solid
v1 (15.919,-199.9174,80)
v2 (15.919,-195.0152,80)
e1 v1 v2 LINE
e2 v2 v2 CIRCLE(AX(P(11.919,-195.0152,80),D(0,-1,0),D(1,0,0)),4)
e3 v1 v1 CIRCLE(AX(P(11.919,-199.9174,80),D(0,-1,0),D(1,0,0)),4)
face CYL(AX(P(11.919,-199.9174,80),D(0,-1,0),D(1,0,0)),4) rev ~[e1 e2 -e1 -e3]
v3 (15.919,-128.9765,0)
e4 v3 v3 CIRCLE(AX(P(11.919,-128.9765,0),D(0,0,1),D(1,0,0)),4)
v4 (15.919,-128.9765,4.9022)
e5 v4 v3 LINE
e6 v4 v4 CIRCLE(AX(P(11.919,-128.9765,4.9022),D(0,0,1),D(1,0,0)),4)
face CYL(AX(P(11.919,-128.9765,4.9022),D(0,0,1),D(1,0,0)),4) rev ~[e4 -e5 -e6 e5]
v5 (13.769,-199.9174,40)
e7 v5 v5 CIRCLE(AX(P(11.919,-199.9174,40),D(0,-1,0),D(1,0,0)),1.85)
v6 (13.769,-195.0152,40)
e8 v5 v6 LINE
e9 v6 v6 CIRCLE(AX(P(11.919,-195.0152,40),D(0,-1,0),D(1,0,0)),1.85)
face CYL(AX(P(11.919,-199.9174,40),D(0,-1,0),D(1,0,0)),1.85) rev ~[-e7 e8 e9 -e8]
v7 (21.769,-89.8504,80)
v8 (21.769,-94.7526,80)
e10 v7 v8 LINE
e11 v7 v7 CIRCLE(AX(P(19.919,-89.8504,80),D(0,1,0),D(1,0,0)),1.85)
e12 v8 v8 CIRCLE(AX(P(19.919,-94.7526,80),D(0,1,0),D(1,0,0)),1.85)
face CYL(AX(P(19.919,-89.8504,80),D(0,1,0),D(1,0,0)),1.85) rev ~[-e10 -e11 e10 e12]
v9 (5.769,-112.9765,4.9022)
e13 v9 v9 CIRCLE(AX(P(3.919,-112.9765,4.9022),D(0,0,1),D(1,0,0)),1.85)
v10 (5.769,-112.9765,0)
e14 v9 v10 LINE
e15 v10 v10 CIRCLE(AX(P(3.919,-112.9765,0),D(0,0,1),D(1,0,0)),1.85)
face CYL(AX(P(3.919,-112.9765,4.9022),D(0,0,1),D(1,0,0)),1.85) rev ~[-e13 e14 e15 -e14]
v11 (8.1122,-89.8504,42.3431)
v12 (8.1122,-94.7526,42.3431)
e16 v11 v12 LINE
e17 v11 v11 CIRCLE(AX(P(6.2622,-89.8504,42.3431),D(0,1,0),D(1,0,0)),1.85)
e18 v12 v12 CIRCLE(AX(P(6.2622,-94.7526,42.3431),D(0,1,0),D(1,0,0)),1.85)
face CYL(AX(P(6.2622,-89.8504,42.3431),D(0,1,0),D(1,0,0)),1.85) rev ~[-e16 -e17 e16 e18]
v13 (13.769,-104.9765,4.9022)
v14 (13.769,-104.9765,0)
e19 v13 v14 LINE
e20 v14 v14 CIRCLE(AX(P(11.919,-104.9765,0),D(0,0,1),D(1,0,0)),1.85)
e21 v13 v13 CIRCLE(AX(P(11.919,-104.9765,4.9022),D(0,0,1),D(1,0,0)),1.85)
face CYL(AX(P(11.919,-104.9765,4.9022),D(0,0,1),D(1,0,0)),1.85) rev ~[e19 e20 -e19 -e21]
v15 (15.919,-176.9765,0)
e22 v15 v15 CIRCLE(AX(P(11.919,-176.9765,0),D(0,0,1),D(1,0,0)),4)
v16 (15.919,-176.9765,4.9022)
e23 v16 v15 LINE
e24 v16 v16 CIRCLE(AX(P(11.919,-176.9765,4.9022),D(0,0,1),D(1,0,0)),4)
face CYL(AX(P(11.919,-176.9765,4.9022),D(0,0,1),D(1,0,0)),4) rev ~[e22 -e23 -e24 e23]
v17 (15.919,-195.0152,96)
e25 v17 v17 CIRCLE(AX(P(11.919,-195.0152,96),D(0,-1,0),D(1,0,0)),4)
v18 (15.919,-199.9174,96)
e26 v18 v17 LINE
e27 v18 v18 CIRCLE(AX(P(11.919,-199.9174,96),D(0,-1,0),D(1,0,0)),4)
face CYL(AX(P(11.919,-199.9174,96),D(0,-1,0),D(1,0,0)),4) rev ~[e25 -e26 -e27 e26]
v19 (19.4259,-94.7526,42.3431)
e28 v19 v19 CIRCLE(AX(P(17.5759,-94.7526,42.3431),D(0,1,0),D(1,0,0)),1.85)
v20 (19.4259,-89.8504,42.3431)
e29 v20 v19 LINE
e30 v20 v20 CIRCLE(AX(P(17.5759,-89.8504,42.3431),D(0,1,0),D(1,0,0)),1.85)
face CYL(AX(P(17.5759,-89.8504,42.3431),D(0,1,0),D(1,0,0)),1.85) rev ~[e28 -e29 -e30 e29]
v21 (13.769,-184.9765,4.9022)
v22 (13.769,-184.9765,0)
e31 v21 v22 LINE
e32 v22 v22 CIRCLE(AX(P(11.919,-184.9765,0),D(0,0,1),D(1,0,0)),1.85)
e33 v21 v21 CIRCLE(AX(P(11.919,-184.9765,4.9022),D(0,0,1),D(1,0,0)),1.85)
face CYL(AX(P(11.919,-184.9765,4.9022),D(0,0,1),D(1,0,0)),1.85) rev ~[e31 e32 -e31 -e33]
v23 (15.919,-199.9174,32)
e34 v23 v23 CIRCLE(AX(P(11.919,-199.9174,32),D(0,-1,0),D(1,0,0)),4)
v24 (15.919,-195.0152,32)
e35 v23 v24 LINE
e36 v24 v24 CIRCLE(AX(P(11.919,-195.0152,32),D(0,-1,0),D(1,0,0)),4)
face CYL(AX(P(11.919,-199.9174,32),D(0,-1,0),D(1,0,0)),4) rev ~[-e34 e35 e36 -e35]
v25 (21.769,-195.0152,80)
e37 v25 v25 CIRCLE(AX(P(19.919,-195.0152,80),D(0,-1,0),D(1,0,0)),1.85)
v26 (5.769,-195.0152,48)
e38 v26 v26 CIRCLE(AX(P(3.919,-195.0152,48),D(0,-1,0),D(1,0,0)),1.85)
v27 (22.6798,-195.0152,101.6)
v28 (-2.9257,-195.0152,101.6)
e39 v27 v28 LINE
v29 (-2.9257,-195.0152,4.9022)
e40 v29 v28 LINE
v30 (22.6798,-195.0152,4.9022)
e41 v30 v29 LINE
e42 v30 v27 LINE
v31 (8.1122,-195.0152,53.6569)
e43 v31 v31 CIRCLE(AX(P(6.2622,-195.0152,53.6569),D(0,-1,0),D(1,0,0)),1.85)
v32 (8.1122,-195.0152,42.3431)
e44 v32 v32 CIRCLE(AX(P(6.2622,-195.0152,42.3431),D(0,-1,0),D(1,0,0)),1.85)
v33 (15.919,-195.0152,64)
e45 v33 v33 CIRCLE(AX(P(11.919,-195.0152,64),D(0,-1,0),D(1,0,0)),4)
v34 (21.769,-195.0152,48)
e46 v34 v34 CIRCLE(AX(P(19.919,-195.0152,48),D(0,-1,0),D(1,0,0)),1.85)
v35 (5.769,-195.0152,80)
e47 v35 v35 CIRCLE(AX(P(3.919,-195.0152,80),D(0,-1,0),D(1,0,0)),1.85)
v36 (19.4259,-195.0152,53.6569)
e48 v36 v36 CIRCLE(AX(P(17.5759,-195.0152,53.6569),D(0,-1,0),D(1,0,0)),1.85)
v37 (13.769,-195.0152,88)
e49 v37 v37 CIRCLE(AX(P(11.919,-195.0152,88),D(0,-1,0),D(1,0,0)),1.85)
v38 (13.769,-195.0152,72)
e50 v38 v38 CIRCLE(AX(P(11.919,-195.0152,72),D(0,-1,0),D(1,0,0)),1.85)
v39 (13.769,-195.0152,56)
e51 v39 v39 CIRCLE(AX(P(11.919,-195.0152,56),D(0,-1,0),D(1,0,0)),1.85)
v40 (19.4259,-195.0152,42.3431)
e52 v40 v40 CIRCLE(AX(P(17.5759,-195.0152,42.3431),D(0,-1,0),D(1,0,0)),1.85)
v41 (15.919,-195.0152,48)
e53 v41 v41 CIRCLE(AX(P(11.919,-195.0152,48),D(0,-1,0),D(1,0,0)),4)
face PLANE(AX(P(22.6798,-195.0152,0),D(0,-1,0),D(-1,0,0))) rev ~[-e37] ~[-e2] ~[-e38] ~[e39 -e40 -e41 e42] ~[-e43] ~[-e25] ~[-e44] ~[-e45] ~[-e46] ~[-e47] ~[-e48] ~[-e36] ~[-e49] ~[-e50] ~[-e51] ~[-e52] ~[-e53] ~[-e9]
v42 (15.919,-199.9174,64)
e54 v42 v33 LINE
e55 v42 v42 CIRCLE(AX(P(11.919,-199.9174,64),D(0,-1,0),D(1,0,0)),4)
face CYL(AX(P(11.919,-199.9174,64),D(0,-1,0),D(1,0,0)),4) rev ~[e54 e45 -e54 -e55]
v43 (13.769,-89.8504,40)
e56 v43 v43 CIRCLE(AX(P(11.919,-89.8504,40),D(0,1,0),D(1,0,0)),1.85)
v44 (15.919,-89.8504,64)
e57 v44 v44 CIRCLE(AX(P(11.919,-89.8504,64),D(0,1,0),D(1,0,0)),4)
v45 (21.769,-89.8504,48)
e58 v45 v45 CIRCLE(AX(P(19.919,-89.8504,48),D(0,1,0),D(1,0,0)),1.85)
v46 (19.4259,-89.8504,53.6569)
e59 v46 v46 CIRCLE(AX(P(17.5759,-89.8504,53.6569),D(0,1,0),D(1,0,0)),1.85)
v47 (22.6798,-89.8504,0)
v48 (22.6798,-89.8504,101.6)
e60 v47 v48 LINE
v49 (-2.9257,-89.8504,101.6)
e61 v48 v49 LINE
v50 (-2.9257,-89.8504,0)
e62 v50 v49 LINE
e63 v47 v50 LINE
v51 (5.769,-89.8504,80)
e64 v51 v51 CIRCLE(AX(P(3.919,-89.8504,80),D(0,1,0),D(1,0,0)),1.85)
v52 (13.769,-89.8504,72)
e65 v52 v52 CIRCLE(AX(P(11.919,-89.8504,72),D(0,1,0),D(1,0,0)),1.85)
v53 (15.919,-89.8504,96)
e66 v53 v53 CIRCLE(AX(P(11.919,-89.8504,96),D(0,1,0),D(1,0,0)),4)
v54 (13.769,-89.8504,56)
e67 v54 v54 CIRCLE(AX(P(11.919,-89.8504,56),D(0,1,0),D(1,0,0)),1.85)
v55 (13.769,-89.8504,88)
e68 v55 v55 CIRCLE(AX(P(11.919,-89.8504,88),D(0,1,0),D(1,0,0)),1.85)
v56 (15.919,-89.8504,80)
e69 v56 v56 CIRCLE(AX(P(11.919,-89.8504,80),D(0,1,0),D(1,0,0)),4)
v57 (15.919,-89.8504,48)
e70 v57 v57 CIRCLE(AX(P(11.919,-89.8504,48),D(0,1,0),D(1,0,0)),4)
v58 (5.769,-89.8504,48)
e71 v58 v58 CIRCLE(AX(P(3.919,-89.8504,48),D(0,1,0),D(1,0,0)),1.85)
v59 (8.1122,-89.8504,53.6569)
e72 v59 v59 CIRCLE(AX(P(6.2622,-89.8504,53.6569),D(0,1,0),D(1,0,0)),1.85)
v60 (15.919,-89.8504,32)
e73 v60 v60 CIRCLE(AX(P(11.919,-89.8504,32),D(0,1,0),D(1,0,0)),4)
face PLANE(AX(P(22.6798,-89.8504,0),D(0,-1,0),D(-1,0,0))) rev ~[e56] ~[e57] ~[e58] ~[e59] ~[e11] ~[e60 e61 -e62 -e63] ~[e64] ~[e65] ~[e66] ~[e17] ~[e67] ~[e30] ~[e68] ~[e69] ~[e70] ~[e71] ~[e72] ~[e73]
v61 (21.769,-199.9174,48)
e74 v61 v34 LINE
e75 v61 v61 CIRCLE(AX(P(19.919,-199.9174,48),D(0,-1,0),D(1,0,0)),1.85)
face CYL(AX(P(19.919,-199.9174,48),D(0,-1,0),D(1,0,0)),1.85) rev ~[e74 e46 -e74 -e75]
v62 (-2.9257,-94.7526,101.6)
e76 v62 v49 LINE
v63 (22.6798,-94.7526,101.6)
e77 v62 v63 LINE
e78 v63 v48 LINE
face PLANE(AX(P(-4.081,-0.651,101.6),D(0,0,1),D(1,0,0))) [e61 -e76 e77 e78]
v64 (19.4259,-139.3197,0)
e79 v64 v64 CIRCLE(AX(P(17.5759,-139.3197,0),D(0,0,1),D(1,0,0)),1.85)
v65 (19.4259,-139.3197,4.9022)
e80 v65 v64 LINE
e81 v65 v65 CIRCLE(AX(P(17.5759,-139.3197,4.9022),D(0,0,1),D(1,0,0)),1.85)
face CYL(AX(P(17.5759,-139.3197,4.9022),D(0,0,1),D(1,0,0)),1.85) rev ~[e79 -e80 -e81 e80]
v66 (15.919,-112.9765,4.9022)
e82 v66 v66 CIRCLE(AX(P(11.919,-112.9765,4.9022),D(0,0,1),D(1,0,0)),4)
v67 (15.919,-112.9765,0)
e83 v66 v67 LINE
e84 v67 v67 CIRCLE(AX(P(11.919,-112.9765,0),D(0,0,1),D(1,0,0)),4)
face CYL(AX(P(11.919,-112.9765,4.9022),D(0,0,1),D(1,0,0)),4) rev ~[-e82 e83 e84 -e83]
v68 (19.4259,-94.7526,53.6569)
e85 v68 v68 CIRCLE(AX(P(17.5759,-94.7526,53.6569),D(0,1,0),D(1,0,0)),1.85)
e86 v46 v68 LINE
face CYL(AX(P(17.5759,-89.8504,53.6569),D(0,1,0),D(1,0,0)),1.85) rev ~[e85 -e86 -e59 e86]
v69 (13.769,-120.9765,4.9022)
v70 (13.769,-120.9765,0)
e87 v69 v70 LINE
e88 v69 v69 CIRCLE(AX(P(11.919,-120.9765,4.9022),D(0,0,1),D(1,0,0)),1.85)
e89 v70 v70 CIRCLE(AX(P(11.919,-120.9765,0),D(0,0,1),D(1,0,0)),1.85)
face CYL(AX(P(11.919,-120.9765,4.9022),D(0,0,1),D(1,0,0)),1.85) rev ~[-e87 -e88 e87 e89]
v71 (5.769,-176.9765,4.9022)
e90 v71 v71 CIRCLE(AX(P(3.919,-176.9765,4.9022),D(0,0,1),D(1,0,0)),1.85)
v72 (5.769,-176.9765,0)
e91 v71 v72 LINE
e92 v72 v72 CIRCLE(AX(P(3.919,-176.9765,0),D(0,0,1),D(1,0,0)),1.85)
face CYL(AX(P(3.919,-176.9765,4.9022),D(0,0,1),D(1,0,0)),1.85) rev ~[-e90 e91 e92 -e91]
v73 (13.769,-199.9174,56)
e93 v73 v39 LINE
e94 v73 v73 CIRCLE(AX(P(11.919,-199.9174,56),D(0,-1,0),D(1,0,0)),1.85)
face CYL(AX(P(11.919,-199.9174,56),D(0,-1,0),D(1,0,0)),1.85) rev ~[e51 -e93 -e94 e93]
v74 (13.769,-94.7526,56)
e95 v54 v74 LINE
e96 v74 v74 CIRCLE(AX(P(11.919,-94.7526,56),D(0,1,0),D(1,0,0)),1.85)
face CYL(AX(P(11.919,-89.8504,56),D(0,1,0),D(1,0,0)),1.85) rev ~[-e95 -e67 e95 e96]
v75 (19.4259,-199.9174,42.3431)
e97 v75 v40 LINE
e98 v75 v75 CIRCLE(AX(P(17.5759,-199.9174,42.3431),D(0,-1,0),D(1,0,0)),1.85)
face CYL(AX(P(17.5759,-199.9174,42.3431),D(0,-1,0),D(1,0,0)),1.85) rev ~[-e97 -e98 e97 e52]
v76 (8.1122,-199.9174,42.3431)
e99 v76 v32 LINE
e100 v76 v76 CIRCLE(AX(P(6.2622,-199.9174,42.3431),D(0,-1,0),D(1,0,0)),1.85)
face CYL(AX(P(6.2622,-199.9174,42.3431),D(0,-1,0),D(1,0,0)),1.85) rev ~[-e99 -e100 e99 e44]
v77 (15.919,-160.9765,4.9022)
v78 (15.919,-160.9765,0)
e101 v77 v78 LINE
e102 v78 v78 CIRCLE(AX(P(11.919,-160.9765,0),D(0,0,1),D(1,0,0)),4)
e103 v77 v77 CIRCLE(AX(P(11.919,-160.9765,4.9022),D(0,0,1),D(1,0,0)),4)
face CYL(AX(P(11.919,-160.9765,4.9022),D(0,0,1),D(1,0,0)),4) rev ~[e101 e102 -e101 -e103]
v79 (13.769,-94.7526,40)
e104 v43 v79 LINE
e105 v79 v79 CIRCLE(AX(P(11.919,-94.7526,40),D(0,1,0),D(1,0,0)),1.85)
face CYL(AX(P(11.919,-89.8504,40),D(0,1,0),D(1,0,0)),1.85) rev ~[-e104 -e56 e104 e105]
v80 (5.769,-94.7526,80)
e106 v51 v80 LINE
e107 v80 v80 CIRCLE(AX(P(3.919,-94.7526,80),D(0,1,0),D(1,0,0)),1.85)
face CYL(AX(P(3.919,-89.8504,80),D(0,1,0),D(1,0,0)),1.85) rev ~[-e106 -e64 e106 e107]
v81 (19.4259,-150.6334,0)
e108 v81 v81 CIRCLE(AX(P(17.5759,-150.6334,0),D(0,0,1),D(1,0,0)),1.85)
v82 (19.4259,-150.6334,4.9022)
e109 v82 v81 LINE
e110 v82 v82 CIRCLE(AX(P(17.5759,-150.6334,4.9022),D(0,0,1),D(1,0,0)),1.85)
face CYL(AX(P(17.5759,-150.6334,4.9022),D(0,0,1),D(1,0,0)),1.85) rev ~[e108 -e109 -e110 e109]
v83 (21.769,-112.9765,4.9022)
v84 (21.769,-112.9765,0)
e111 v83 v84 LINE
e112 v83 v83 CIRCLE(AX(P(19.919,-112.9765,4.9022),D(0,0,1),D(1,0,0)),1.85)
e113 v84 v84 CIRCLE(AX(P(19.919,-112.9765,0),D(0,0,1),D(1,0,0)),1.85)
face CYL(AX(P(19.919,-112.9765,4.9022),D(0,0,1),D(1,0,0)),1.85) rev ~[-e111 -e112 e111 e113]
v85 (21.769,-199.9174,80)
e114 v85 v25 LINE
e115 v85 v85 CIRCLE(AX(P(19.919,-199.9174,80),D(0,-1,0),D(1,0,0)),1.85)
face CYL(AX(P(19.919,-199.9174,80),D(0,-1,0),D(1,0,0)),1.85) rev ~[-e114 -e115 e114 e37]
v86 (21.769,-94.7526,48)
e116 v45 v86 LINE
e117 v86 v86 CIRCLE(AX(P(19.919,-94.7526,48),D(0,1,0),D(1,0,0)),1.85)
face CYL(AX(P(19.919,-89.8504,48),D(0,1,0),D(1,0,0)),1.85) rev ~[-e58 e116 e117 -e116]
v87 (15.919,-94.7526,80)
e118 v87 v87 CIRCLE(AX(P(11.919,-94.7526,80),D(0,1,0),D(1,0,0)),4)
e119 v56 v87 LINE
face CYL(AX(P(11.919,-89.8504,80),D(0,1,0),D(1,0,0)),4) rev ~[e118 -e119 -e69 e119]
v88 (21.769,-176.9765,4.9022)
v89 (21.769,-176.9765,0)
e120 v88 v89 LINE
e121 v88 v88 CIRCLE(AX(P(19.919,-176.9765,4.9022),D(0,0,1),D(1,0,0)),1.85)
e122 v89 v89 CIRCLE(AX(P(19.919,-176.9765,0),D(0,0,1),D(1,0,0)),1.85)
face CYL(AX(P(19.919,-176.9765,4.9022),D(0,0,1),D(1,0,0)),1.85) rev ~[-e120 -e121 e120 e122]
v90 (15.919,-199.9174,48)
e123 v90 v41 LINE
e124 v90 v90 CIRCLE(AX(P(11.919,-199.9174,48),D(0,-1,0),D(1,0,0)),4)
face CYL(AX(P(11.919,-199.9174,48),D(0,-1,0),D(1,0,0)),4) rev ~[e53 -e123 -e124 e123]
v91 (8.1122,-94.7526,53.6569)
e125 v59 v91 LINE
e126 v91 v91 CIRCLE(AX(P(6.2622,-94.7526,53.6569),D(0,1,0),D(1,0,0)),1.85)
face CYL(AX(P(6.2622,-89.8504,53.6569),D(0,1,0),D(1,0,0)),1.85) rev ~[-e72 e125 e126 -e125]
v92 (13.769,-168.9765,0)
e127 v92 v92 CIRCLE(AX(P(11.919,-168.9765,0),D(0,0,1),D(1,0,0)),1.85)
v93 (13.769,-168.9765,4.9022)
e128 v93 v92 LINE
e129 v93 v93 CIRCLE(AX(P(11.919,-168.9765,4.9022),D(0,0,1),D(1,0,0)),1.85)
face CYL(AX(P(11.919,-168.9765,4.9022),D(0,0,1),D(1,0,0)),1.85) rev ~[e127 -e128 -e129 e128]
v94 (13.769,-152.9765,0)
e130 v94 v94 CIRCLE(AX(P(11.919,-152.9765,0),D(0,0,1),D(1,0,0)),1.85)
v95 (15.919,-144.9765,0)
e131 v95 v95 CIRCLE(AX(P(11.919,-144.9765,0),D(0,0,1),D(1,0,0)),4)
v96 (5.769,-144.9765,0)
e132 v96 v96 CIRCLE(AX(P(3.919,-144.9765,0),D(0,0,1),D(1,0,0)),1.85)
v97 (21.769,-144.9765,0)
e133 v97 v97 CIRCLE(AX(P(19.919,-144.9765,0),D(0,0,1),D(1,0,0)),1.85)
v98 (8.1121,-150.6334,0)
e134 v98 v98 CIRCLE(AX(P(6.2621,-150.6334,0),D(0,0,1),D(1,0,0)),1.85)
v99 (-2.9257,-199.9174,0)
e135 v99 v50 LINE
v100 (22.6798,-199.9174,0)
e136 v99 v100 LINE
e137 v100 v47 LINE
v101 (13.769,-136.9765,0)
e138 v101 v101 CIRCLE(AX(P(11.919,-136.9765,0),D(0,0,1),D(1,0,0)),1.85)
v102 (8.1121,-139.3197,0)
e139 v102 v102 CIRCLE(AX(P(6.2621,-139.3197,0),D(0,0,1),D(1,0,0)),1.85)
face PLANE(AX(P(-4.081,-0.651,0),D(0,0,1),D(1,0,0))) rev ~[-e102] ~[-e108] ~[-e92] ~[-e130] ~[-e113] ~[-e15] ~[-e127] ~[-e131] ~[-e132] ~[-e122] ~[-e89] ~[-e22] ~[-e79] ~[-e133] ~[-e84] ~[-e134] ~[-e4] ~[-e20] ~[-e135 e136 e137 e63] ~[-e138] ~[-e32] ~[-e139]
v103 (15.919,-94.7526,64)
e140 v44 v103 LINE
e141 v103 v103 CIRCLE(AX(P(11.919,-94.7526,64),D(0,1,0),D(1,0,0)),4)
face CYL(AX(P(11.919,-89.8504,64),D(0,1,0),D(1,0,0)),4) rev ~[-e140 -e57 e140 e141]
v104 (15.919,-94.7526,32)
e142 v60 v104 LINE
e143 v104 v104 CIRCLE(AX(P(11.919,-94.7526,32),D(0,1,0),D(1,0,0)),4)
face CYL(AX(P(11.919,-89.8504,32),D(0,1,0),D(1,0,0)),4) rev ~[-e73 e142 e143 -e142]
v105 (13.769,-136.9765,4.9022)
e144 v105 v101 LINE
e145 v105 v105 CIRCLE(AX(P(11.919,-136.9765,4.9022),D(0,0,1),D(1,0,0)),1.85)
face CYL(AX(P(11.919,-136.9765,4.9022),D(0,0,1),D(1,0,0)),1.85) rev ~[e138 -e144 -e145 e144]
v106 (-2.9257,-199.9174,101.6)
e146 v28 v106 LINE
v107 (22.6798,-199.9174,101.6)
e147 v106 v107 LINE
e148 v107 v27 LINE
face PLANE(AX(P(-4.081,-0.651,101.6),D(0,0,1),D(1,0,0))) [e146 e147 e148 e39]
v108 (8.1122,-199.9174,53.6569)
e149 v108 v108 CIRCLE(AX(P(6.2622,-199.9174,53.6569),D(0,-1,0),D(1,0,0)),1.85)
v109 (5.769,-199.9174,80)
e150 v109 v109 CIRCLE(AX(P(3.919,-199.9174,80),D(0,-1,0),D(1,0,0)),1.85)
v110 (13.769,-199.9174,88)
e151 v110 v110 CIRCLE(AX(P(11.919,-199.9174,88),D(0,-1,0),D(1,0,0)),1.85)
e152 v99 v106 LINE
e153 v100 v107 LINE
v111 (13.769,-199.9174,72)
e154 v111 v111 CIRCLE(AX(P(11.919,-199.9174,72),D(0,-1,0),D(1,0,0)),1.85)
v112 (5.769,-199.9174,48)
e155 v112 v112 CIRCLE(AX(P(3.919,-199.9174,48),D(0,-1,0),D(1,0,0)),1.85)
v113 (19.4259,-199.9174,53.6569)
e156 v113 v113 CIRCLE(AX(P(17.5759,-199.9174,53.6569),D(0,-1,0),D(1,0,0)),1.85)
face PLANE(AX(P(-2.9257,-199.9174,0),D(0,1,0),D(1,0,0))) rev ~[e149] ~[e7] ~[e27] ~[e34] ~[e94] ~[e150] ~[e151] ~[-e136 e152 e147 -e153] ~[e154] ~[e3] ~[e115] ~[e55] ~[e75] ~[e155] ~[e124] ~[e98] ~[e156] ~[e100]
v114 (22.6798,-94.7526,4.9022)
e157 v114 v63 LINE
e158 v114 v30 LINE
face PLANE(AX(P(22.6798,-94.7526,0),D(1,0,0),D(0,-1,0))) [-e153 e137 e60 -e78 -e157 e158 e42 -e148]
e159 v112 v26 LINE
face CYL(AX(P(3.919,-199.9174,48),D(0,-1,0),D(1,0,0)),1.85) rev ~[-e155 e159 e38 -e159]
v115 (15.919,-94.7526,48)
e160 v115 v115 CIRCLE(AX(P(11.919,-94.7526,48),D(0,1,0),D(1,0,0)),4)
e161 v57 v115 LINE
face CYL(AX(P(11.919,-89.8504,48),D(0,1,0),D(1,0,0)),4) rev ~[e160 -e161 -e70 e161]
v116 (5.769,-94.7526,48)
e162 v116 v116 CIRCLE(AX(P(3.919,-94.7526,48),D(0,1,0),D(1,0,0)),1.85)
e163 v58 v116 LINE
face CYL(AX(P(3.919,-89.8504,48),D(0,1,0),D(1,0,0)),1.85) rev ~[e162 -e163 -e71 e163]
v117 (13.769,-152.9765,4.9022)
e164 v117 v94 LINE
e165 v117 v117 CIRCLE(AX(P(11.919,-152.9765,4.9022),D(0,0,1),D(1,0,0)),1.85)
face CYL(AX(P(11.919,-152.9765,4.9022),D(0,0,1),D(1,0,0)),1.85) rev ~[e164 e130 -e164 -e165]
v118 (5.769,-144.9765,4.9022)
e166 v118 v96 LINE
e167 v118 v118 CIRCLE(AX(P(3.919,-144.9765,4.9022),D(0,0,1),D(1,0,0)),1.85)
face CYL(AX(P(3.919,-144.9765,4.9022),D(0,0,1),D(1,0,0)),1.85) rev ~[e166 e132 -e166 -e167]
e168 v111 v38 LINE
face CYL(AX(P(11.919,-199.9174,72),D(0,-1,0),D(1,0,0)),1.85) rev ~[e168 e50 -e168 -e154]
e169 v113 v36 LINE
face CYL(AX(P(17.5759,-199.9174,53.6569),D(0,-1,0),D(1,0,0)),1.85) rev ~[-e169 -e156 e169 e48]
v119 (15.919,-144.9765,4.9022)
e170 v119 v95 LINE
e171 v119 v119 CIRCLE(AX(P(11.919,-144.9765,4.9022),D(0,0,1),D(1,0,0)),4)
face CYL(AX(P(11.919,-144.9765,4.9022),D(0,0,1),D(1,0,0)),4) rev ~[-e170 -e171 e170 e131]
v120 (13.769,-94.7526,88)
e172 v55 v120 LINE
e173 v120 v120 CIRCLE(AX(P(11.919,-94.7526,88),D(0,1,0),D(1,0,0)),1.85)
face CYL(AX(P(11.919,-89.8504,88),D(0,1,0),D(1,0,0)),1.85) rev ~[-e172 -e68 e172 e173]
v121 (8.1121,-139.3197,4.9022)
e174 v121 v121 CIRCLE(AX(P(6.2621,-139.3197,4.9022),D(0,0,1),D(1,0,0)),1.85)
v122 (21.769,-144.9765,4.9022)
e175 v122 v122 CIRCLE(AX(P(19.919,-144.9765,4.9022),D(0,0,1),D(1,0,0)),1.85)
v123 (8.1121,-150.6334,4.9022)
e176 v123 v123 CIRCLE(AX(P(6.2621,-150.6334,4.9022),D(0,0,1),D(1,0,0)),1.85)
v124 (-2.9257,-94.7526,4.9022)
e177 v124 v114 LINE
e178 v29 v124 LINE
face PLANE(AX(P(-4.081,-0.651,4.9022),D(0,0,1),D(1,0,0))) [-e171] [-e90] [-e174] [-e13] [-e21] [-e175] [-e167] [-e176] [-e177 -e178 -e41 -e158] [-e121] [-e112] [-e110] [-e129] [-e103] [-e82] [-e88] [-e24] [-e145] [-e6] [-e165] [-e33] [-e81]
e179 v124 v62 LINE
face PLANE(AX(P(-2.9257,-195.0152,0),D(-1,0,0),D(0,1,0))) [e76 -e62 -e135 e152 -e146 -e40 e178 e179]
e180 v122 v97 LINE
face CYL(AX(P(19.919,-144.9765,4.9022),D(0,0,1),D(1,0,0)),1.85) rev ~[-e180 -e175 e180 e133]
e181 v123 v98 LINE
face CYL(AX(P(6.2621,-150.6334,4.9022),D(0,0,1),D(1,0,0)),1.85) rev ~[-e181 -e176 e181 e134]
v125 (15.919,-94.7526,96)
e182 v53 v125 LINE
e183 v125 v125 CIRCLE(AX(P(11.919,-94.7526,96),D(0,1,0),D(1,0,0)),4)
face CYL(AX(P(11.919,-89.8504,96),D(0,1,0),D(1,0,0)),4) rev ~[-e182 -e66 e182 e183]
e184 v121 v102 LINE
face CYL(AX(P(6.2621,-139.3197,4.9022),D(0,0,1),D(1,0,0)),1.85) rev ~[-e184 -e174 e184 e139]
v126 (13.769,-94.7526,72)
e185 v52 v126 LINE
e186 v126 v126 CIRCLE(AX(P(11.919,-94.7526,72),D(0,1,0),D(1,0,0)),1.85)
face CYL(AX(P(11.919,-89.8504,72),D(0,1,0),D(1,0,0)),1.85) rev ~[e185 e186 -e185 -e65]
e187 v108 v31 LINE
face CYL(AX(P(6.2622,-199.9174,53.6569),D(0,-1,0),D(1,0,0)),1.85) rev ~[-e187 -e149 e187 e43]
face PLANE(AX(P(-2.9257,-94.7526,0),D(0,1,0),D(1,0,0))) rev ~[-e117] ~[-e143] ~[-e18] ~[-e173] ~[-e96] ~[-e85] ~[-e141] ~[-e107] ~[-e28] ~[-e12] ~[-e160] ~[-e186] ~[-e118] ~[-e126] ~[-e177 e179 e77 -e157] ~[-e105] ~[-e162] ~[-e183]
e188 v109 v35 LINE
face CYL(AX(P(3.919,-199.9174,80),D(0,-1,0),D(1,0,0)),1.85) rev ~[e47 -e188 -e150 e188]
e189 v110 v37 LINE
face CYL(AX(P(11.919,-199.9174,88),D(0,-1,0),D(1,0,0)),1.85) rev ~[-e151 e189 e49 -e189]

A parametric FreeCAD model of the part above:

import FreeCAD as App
import Part
import Sketcher
from FreeCAD import Vector
Q = App.Units.Quantity

doc = App.newDocument("Part")
body = doc.addObject("PartDesign::Body", "Body")
body.AllowCompound = True

# Sketch on XY plane
sketch1 = body.newObject("Sketcher::SketchObject", "Sketch")
sketch1.AttachmentSupport = (doc.getObject("XY_Plane"), [""])
sketch1.MapMode = "FlatFace"
sketch1.addGeometry([
    Part.LineSegment(Vector(22.7, -195, 0), Vector(-2.9, -195, 0)),  # 0
    Part.LineSegment(Vector(-2.9, -195, 0), Vector(-2.9, -199.9, 0)),  # 1
    Part.LineSegment(Vector(-2.9, -199.9, 0), Vector(22.7, -199.9, 0)),  # 2
    Part.LineSegment(Vector(22.7, -199.9, 0), Vector(22.7, -195, 0)),  # 3
    Part.LineSegment(Vector(-2.9, -89.9, 0), Vector(-2.9, -94.8, 0)),  # 4
    Part.LineSegment(Vector(-2.9, -94.8, 0), Vector(22.7, -94.8, 0)),  # 5
    Part.LineSegment(Vector(22.7, -94.8, 0), Vector(22.7, -89.9, 0)),  # 6
    Part.LineSegment(Vector(22.7, -89.9, 0), Vector(-2.9, -89.9, 0)),  # 7
], False)
sketch1.addConstraint([
    Sketcher.Constraint("Coincident", 0, 2, 1, 1),
    Sketcher.Constraint("Coincident", 1, 2, 2, 1),
    Sketcher.Constraint("Coincident", 2, 2, 3, 1),
    Sketcher.Constraint("Coincident", 3, 2, 0, 1),
    Sketcher.Constraint("Coincident", 4, 2, 5, 1),
    Sketcher.Constraint("Coincident", 5, 2, 6, 1),
    Sketcher.Constraint("Coincident", 6, 2, 7, 1),
    Sketcher.Constraint("Coincident", 7, 2, 4, 1),
    Sketcher.Constraint("Horizontal", 0),
    Sketcher.Constraint("Vertical", 1),
    Sketcher.Constraint("Horizontal", 2),
    Sketcher.Constraint("Vertical", 3),
    Sketcher.Constraint("Vertical", 4),
    Sketcher.Constraint("Horizontal", 5),
    Sketcher.Constraint("Vertical", 6),
    Sketcher.Constraint("Horizontal", 7),
    Sketcher.Constraint("Vertical", 1, 2, 4, 2),
    Sketcher.Constraint("Vertical", 3, 2, 5, 2),
    Sketcher.Constraint("Equal", 3, 4),
    Sketcher.Constraint("DistanceY", 1, 2, 1, 1, Q("0.193 in")),
    Sketcher.Constraint("DistanceX", 0, 2, 0, 1, Q("1.0081 in")),
    Sketcher.Constraint("DistanceX", -1, 1, 2, 2, Q("0.8929 in")),
    Sketcher.Constraint("DistanceY", 0, 2, -1, 1, 195.0152),
    Sketcher.Constraint("DistanceY", 4, 2, -1, 1, 94.7526),
])
pad1 = body.newObject("PartDesign::Pad", "Pad")
pad1.Profile = sketch1
pad1.Length = Q("4 in")

# Sketch on XY plane
sketch2 = body.newObject("Sketcher::SketchObject", "Sketch001")
sketch2.AttachmentSupport = (doc.getObject("XY_Plane"), [""])
sketch2.MapMode = "FlatFace"
sketch2.addGeometry([
    Part.LineSegment(Vector(23, -95, 0), Vector(-3, -95, 0)),
    Part.LineSegment(Vector(-3, -95, 0), Vector(-3, -195, 0)),
    Part.LineSegment(Vector(-3, -195, 0), Vector(23, -195, 0)),
    Part.LineSegment(Vector(23, -195, 0), Vector(23, -95, 0)),
], False)
sketch2.addConstraint([
    Sketcher.Constraint("Coincident", 0, 2, 1, 1),
    Sketcher.Constraint("Coincident", 1, 2, 2, 1),
    Sketcher.Constraint("Coincident", 2, 2, 3, 1),
    Sketcher.Constraint("Coincident", 3, 2, 0, 1),
    Sketcher.Constraint("Horizontal", 0),
    Sketcher.Constraint("Vertical", 1),
    Sketcher.Constraint("Horizontal", 2),
    Sketcher.Constraint("Vertical", 3),
    Sketcher.Constraint("DistanceX", 0, 2, 0, 1, Q("1.0081 in")),
    Sketcher.Constraint("DistanceY", 1, 2, 1, 1, 100.2626),
    Sketcher.Constraint("DistanceX", -1, 1, 2, 2, Q("0.8929 in")),
    Sketcher.Constraint("DistanceY", 0, 2, -1, 1, 94.7526),
])
pad2 = body.newObject("PartDesign::Pad", "Pad001")
pad2.Profile = sketch2
pad2.Length = Q("0.193 in")

# Sketch on XZ plane
sketch3 = body.newObject("Sketcher::SketchObject", "Sketch002")
sketch3.AttachmentSupport = (doc.getObject("XZ_Plane"), [""])
sketch3.MapMode = "FlatFace"
sketch3.AttachmentOffset = App.Placement(Vector(0, 0, 89.8504), App.Rotation())
sketch3.addGeometry([
    Part.Circle(Vector(11.9, 48, 0), Vector(0, 0, 1), 4),  # 0
    Part.Circle(Vector(3.9, 48, 0), Vector(0, 0, 1), 1.9),  # 1
    Part.Circle(Vector(19.9, 48, 0), Vector(0, 0, 1), 1.9),  # 2
    Part.Circle(Vector(11.9, 56, 0), Vector(0, 0, 1), 1.9),  # 3
    Part.Circle(Vector(11.9, 40, 0), Vector(0, 0, 1), 1.9),  # 4
    Part.Circle(Vector(6.3, 53.7, 0), Vector(0, 0, 1), 1.9),  # 5
    Part.Circle(Vector(6.3, 42.3, 0), Vector(0, 0, 1), 1.9),  # 6
    Part.Circle(Vector(17.6, 42.3, 0), Vector(0, 0, 1), 1.9),  # 7
    Part.Circle(Vector(17.6, 53.7, 0), Vector(0, 0, 1), 1.9),  # 8
    Part.Circle(Vector(11.9, 80, 0), Vector(0, 0, 1), 4),  # 9
    Part.Circle(Vector(3.9, 80, 0), Vector(0, 0, 1), 1.9),  # 10
    Part.Circle(Vector(11.9, 88, 0), Vector(0, 0, 1), 1.9),  # 11
    Part.Circle(Vector(19.9, 80, 0), Vector(0, 0, 1), 1.9),  # 12
    Part.Circle(Vector(11.9, 72, 0), Vector(0, 0, 1), 1.9),  # 13
    Part.Circle(Vector(11.9, 32, 0), Vector(0, 0, 1), 4),  # 14
    Part.Circle(Vector(11.9, 64, 0), Vector(0, 0, 1), 4),  # 15
    Part.Circle(Vector(11.9, 96, 0), Vector(0, 0, 1), 4),  # 16
], False)
sketch3.addConstraint([
    Sketcher.Constraint("Equal", 1, 2),
    Sketcher.Constraint("Equal", 2, 3),
    Sketcher.Constraint("Equal", 3, 4),
    Sketcher.Constraint("Equal", 4, 5),
    Sketcher.Constraint("Equal", 5, 6),
    Sketcher.Constraint("Equal", 6, 7),
    Sketcher.Constraint("Equal", 7, 8),
    Sketcher.Constraint("Equal", 0, 9),
    Sketcher.Constraint("Equal", 8, 10),
    Sketcher.Constraint("Equal", 10, 11),
    Sketcher.Constraint("Equal", 11, 12),
    Sketcher.Constraint("Equal", 12, 13),
    Sketcher.Constraint("Equal", 9, 14),
    Sketcher.Constraint("Equal", 14, 15),
    Sketcher.Constraint("Equal", 15, 16),
    Sketcher.Constraint("Horizontal", 0, 3, 1, 3),
    Sketcher.Constraint("Horizontal", 1, 3, 2, 3),
    Sketcher.Constraint("Horizontal", 6, 3, 7, 3),
    Sketcher.Constraint("Horizontal", 5, 3, 8, 3),
    Sketcher.Constraint("Horizontal", 9, 3, 10, 3),
    Sketcher.Constraint("Horizontal", 10, 3, 12, 3),
    Sketcher.Constraint("Vertical", 0, 3, 3, 3),
    Sketcher.Constraint("Vertical", 3, 3, 4, 3),
    Sketcher.Constraint("Vertical", 5, 3, 6, 3),
    Sketcher.Constraint("Vertical", 7, 3, 8, 3),
    Sketcher.Constraint("Vertical", 4, 3, 9, 3),
    Sketcher.Constraint("Vertical", 1, 3, 10, 3),
    Sketcher.Constraint("Vertical", 9, 3, 11, 3),
    Sketcher.Constraint("Vertical", 2, 3, 12, 3),
    Sketcher.Constraint("Vertical", 11, 3, 13, 3),
    Sketcher.Constraint("Vertical", 13, 3, 14, 3),
    Sketcher.Constraint("Vertical", 14, 3, 15, 3),
    Sketcher.Constraint("Vertical", 15, 3, 16, 3),
    Sketcher.Constraint("Diameter", 0, 8.0),
    Sketcher.Constraint("Diameter", 1, 3.7),
    Sketcher.Constraint("DistanceX", -1, 1, 1, 3, Q("0.1543 in")),
    Sketcher.Constraint("DistanceY", -1, 1, 4, 3, Q("1.5748 in")),
    Sketcher.Constraint("DistanceY", -1, 1, 9, 3, Q("3.1496 in")),
    Sketcher.Constraint("DistanceX", 5, 3, 3, 3, Q("0.2227 in")),
    Sketcher.Constraint("DistanceY", 5, 3, 11, 3, Q("1.3521 in")),
    Sketcher.Constraint("DistanceY", 14, 3, 6, 3, Q("0.4072 in")),
    Sketcher.Constraint("DistanceY", 5, 3, 15, 3, Q("0.4072 in")),
    Sketcher.Constraint("DistanceX", -1, 1, 0, 3, 11.919),
    Sketcher.Constraint("DistanceY", -1, 1, 0, 3, 48.0),
    Sketcher.Constraint("DistanceX", -1, 1, 2, 3, 19.919),
    Sketcher.Constraint("DistanceY", -1, 1, 3, 3, 56.0),
    Sketcher.Constraint("DistanceY", -1, 1, 5, 3, 53.657),
    Sketcher.Constraint("DistanceY", -1, 1, 6, 3, 42.343),
    Sketcher.Constraint("DistanceX", -1, 1, 7, 3, 17.576),
    Sketcher.Constraint("DistanceY", -1, 1, 13, 3, 72.0),
    Sketcher.Constraint("DistanceY", -1, 1, 16, 3, 96.0),
])
pocket1 = body.newObject("PartDesign::Pocket", "Pocket")
pocket1.Profile = sketch3
pocket1.Length = Q("0.818 in")
pocket1.Reversed = True

# Sketch on XY plane
sketch4 = body.newObject("Sketcher::SketchObject", "Sketch003")
sketch4.AttachmentSupport = (doc.getObject("XY_Plane"), [""])
sketch4.MapMode = "FlatFace"
sketch4.AttachmentOffset = App.Placement(Vector(0, 0, 0.193 * 25.4), App.Rotation())
sketch4.addGeometry([
    Part.Circle(Vector(11.9, -161, 0), Vector(0, 0, 1), 4),  # 0
    Part.Circle(Vector(11.9, -145, 0), Vector(0, 0, 1), 4),  # 1
    Part.Circle(Vector(3.9, -145, 0), Vector(0, 0, 1), 1.9),  # 2
    Part.Circle(Vector(6.3, -150.6, 0), Vector(0, 0, 1), 1.9),  # 3
    Part.Circle(Vector(11.9, -153, 0), Vector(0, 0, 1), 1.9),  # 4
    Part.Circle(Vector(17.6, -150.6, 0), Vector(0, 0, 1), 1.9),  # 5
    Part.Circle(Vector(19.9, -145, 0), Vector(0, 0, 1), 1.9),  # 6
    Part.Circle(Vector(17.6, -139.3, 0), Vector(0, 0, 1), 1.9),  # 7
    Part.Circle(Vector(11.9, -137, 0), Vector(0, 0, 1), 1.9),  # 8
    Part.Circle(Vector(6.3, -139.3, 0), Vector(0, 0, 1), 1.9),  # 9
    Part.Circle(Vector(11.9, -113, 0), Vector(0, 0, 1), 4),  # 10
    Part.Circle(Vector(3.9, -113, 0), Vector(0, 0, 1), 1.9),  # 11
    Part.Circle(Vector(11.9, -121, 0), Vector(0, 0, 1), 1.9),  # 12
    Part.Circle(Vector(19.9, -113, 0), Vector(0, 0, 1), 1.9),  # 13
    Part.Circle(Vector(11.9, -105, 0), Vector(0, 0, 1), 1.9),  # 14
    Part.Circle(Vector(11.9, -177, 0), Vector(0, 0, 1), 4),  # 15
    Part.Circle(Vector(3.9, -177, 0), Vector(0, 0, 1), 1.9),  # 16
    Part.Circle(Vector(11.9, -185, 0), Vector(0, 0, 1), 1.9),  # 17
    Part.Circle(Vector(19.9, -177, 0), Vector(0, 0, 1), 1.9),  # 18
    Part.Circle(Vector(11.9, -169, 0), Vector(0, 0, 1), 1.9),  # 19
    Part.Circle(Vector(11.9, -129, 0), Vector(0, 0, 1), 4),  # 20
], False)
sketch4.addConstraint([
    Sketcher.Constraint("Equal", 0, 1),
    Sketcher.Constraint("Equal", 2, 3),
    Sketcher.Constraint("Equal", 3, 4),
    Sketcher.Constraint("Equal", 4, 5),
    Sketcher.Constraint("Equal", 5, 6),
    Sketcher.Constraint("Equal", 6, 7),
    Sketcher.Constraint("Equal", 7, 8),
    Sketcher.Constraint("Equal", 8, 9),
    Sketcher.Constraint("Equal", 1, 10),
    Sketcher.Constraint("Equal", 9, 11),
    Sketcher.Constraint("Equal", 11, 12),
    Sketcher.Constraint("Equal", 12, 13),
    Sketcher.Constraint("Equal", 13, 14),
    Sketcher.Constraint("Equal", 10, 15),
    Sketcher.Constraint("Equal", 14, 16),
    Sketcher.Constraint("Equal", 16, 17),
    Sketcher.Constraint("Equal", 17, 18),
    Sketcher.Constraint("Equal", 18, 19),
    Sketcher.Constraint("Equal", 15, 20),
    Sketcher.Constraint("Horizontal", 1, 3, 2, 3),
    Sketcher.Constraint("Horizontal", 3, 3, 5, 3),
    Sketcher.Constraint("Horizontal", 2, 3, 6, 3),
    Sketcher.Constraint("Horizontal", 7, 3, 9, 3),
    Sketcher.Constraint("Horizontal", 10, 3, 11, 3),
    Sketcher.Constraint("Horizontal", 11, 3, 13, 3),
    Sketcher.Constraint("Horizontal", 15, 3, 16, 3),
    Sketcher.Constraint("Horizontal", 16, 3, 18, 3),
    Sketcher.Constraint("Vertical", 0, 3, 1, 3),
    Sketcher.Constraint("Vertical", 1, 3, 4, 3),
    Sketcher.Constraint("Vertical", 5, 3, 7, 3),
    Sketcher.Constraint("Vertical", 4, 3, 8, 3),
    Sketcher.Constraint("Vertical", 3, 3, 9, 3),
    Sketcher.Constraint("Vertical", 8, 3, 10, 3),
    Sketcher.Constraint("Vertical", 2, 3, 11, 3),
    Sketcher.Constraint("Vertical", 10, 3, 12, 3),
    Sketcher.Constraint("Vertical", 6, 3, 13, 3),
    Sketcher.Constraint("Vertical", 12, 3, 14, 3),
    Sketcher.Constraint("Vertical", 14, 3, 15, 3),
    Sketcher.Constraint("Vertical", 11, 3, 16, 3),
    Sketcher.Constraint("Vertical", 15, 3, 17, 3),
    Sketcher.Constraint("Vertical", 13, 3, 18, 3),
    Sketcher.Constraint("Vertical", 17, 3, 19, 3),
    Sketcher.Constraint("Vertical", 19, 3, 20, 3),
    Sketcher.Constraint("Diameter", 0, 8.0),
    Sketcher.Constraint("Diameter", 2, 3.7),
    Sketcher.Constraint("DistanceX", -1, 1, 2, 3, Q("0.1543 in")),
    Sketcher.Constraint("DistanceY", 4, 3, -1, 1, Q("6.0227 in")),
    Sketcher.Constraint("DistanceY", 10, 3, -1, 1, Q("4.4479 in")),
    Sketcher.Constraint("DistanceY", 0, 3, 3, 3, Q("0.4072 in")),
    Sketcher.Constraint("DistanceY", 6, 3, 7, 3, Q("0.2227 in")),
    Sketcher.Constraint("DistanceY", 17, 3, 3, 3, Q("1.3521 in")),
    Sketcher.Constraint("DistanceX", -1, 1, 0, 3, 11.919),
    Sketcher.Constraint("DistanceY", 0, 3, -1, 1, 160.9765),
    Sketcher.Constraint("DistanceY", 1, 3, -1, 1, 144.9765),
    Sketcher.Constraint("DistanceX", -1, 1, 3, 3, 6.262),
    Sketcher.Constraint("DistanceX", -1, 1, 5, 3, 17.576),
    Sketcher.Constraint("DistanceX", -1, 1, 6, 3, 19.919),
    Sketcher.Constraint("DistanceY", 8, 3, -1, 1, 136.9765),
    Sketcher.Constraint("DistanceY", 12, 3, -1, 1, 120.9765),
    Sketcher.Constraint("DistanceY", 14, 3, -1, 1, 104.9765),
    Sketcher.Constraint("DistanceY", 15, 3, -1, 1, 176.9765),
    Sketcher.Constraint("DistanceY", 19, 3, -1, 1, 168.9765),
    Sketcher.Constraint("DistanceY", 20, 3, -1, 1, 128.9765),
])
pocket2 = body.newObject("PartDesign::Pocket", "Pocket001")
pocket2.Profile = sketch4
pocket2.Length = Q("0.807 in")

# Sketch on XZ plane
sketch5 = body.newObject("Sketcher::SketchObject", "Sketch004")
sketch5.AttachmentSupport = (doc.getObject("XZ_Plane"), [""])
sketch5.MapMode = "FlatFace"
sketch5.AttachmentOffset = App.Placement(Vector(0, 0, 199.9174), App.Rotation())
sketch5.addGeometry([
    Part.Circle(Vector(11.9, 48, 0), Vector(0, 0, 1), 4),  # 0
    Part.Circle(Vector(3.9, 48, 0), Vector(0, 0, 1), 1.9),  # 1
    Part.Circle(Vector(19.9, 48, 0), Vector(0, 0, 1), 1.9),  # 2
    Part.Circle(Vector(11.9, 56, 0), Vector(0, 0, 1), 1.9),  # 3
    Part.Circle(Vector(11.9, 40, 0), Vector(0, 0, 1), 1.9),  # 4
    Part.Circle(Vector(6.3, 53.7, 0), Vector(0, 0, 1), 1.9),  # 5
    Part.Circle(Vector(6.3, 42.3, 0), Vector(0, 0, 1), 1.9),  # 6
    Part.Circle(Vector(17.6, 42.3, 0), Vector(0, 0, 1), 1.9),  # 7
    Part.Circle(Vector(17.6, 53.7, 0), Vector(0, 0, 1), 1.9),  # 8
    Part.Circle(Vector(11.9, 80, 0), Vector(0, 0, 1), 4),  # 9
    Part.Circle(Vector(3.9, 80, 0), Vector(0, 0, 1), 1.9),  # 10
    Part.Circle(Vector(11.9, 88, 0), Vector(0, 0, 1), 1.9),  # 11
    Part.Circle(Vector(19.9, 80, 0), Vector(0, 0, 1), 1.9),  # 12
    Part.Circle(Vector(11.9, 72, 0), Vector(0, 0, 1), 1.9),  # 13
    Part.Circle(Vector(11.9, 32, 0), Vector(0, 0, 1), 4),  # 14
    Part.Circle(Vector(11.9, 64, 0), Vector(0, 0, 1), 4),  # 15
    Part.Circle(Vector(11.9, 96, 0), Vector(0, 0, 1), 4),  # 16
], False)
sketch5.addConstraint([
    Sketcher.Constraint("Equal", 1, 2),
    Sketcher.Constraint("Equal", 2, 3),
    Sketcher.Constraint("Equal", 3, 4),
    Sketcher.Constraint("Equal", 4, 5),
    Sketcher.Constraint("Equal", 5, 6),
    Sketcher.Constraint("Equal", 6, 7),
    Sketcher.Constraint("Equal", 7, 8),
    Sketcher.Constraint("Equal", 0, 9),
    Sketcher.Constraint("Equal", 8, 10),
    Sketcher.Constraint("Equal", 10, 11),
    Sketcher.Constraint("Equal", 11, 12),
    Sketcher.Constraint("Equal", 12, 13),
    Sketcher.Constraint("Equal", 9, 14),
    Sketcher.Constraint("Equal", 14, 15),
    Sketcher.Constraint("Equal", 15, 16),
    Sketcher.Constraint("Horizontal", 0, 3, 1, 3),
    Sketcher.Constraint("Horizontal", 1, 3, 2, 3),
    Sketcher.Constraint("Horizontal", 6, 3, 7, 3),
    Sketcher.Constraint("Horizontal", 5, 3, 8, 3),
    Sketcher.Constraint("Horizontal", 9, 3, 10, 3),
    Sketcher.Constraint("Horizontal", 10, 3, 12, 3),
    Sketcher.Constraint("Vertical", 0, 3, 3, 3),
    Sketcher.Constraint("Vertical", 3, 3, 4, 3),
    Sketcher.Constraint("Vertical", 5, 3, 6, 3),
    Sketcher.Constraint("Vertical", 7, 3, 8, 3),
    Sketcher.Constraint("Vertical", 4, 3, 9, 3),
    Sketcher.Constraint("Vertical", 1, 3, 10, 3),
    Sketcher.Constraint("Vertical", 9, 3, 11, 3),
    Sketcher.Constraint("Vertical", 2, 3, 12, 3),
    Sketcher.Constraint("Vertical", 11, 3, 13, 3),
    Sketcher.Constraint("Vertical", 13, 3, 14, 3),
    Sketcher.Constraint("Vertical", 14, 3, 15, 3),
    Sketcher.Constraint("Vertical", 15, 3, 16, 3),
    Sketcher.Constraint("Diameter", 0, 8.0),
    Sketcher.Constraint("Diameter", 1, 3.7),
    Sketcher.Constraint("DistanceX", -1, 1, 1, 3, Q("0.1543 in")),
    Sketcher.Constraint("DistanceY", -1, 1, 4, 3, Q("1.5748 in")),
    Sketcher.Constraint("DistanceY", -1, 1, 9, 3, Q("3.1496 in")),
    Sketcher.Constraint("DistanceX", 5, 3, 3, 3, Q("0.2227 in")),
    Sketcher.Constraint("DistanceY", 5, 3, 11, 3, Q("1.3521 in")),
    Sketcher.Constraint("DistanceY", 14, 3, 6, 3, Q("0.4072 in")),
    Sketcher.Constraint("DistanceY", 5, 3, 15, 3, Q("0.4072 in")),
    Sketcher.Constraint("DistanceX", -1, 1, 0, 3, 11.919),
    Sketcher.Constraint("DistanceY", -1, 1, 0, 3, 48.0),
    Sketcher.Constraint("DistanceX", -1, 1, 2, 3, 19.919),
    Sketcher.Constraint("DistanceY", -1, 1, 3, 3, 56.0),
    Sketcher.Constraint("DistanceY", -1, 1, 5, 3, 53.657),
    Sketcher.Constraint("DistanceY", -1, 1, 6, 3, 42.343),
    Sketcher.Constraint("DistanceX", -1, 1, 7, 3, 17.576),
    Sketcher.Constraint("DistanceY", -1, 1, 13, 3, 72.0),
    Sketcher.Constraint("DistanceY", -1, 1, 16, 3, 96.0),
])
pocket3 = body.newObject("PartDesign::Pocket", "Pocket002")
pocket3.Profile = sketch5
pocket3.Length = Q("1.443 in")

doc.recompute()
